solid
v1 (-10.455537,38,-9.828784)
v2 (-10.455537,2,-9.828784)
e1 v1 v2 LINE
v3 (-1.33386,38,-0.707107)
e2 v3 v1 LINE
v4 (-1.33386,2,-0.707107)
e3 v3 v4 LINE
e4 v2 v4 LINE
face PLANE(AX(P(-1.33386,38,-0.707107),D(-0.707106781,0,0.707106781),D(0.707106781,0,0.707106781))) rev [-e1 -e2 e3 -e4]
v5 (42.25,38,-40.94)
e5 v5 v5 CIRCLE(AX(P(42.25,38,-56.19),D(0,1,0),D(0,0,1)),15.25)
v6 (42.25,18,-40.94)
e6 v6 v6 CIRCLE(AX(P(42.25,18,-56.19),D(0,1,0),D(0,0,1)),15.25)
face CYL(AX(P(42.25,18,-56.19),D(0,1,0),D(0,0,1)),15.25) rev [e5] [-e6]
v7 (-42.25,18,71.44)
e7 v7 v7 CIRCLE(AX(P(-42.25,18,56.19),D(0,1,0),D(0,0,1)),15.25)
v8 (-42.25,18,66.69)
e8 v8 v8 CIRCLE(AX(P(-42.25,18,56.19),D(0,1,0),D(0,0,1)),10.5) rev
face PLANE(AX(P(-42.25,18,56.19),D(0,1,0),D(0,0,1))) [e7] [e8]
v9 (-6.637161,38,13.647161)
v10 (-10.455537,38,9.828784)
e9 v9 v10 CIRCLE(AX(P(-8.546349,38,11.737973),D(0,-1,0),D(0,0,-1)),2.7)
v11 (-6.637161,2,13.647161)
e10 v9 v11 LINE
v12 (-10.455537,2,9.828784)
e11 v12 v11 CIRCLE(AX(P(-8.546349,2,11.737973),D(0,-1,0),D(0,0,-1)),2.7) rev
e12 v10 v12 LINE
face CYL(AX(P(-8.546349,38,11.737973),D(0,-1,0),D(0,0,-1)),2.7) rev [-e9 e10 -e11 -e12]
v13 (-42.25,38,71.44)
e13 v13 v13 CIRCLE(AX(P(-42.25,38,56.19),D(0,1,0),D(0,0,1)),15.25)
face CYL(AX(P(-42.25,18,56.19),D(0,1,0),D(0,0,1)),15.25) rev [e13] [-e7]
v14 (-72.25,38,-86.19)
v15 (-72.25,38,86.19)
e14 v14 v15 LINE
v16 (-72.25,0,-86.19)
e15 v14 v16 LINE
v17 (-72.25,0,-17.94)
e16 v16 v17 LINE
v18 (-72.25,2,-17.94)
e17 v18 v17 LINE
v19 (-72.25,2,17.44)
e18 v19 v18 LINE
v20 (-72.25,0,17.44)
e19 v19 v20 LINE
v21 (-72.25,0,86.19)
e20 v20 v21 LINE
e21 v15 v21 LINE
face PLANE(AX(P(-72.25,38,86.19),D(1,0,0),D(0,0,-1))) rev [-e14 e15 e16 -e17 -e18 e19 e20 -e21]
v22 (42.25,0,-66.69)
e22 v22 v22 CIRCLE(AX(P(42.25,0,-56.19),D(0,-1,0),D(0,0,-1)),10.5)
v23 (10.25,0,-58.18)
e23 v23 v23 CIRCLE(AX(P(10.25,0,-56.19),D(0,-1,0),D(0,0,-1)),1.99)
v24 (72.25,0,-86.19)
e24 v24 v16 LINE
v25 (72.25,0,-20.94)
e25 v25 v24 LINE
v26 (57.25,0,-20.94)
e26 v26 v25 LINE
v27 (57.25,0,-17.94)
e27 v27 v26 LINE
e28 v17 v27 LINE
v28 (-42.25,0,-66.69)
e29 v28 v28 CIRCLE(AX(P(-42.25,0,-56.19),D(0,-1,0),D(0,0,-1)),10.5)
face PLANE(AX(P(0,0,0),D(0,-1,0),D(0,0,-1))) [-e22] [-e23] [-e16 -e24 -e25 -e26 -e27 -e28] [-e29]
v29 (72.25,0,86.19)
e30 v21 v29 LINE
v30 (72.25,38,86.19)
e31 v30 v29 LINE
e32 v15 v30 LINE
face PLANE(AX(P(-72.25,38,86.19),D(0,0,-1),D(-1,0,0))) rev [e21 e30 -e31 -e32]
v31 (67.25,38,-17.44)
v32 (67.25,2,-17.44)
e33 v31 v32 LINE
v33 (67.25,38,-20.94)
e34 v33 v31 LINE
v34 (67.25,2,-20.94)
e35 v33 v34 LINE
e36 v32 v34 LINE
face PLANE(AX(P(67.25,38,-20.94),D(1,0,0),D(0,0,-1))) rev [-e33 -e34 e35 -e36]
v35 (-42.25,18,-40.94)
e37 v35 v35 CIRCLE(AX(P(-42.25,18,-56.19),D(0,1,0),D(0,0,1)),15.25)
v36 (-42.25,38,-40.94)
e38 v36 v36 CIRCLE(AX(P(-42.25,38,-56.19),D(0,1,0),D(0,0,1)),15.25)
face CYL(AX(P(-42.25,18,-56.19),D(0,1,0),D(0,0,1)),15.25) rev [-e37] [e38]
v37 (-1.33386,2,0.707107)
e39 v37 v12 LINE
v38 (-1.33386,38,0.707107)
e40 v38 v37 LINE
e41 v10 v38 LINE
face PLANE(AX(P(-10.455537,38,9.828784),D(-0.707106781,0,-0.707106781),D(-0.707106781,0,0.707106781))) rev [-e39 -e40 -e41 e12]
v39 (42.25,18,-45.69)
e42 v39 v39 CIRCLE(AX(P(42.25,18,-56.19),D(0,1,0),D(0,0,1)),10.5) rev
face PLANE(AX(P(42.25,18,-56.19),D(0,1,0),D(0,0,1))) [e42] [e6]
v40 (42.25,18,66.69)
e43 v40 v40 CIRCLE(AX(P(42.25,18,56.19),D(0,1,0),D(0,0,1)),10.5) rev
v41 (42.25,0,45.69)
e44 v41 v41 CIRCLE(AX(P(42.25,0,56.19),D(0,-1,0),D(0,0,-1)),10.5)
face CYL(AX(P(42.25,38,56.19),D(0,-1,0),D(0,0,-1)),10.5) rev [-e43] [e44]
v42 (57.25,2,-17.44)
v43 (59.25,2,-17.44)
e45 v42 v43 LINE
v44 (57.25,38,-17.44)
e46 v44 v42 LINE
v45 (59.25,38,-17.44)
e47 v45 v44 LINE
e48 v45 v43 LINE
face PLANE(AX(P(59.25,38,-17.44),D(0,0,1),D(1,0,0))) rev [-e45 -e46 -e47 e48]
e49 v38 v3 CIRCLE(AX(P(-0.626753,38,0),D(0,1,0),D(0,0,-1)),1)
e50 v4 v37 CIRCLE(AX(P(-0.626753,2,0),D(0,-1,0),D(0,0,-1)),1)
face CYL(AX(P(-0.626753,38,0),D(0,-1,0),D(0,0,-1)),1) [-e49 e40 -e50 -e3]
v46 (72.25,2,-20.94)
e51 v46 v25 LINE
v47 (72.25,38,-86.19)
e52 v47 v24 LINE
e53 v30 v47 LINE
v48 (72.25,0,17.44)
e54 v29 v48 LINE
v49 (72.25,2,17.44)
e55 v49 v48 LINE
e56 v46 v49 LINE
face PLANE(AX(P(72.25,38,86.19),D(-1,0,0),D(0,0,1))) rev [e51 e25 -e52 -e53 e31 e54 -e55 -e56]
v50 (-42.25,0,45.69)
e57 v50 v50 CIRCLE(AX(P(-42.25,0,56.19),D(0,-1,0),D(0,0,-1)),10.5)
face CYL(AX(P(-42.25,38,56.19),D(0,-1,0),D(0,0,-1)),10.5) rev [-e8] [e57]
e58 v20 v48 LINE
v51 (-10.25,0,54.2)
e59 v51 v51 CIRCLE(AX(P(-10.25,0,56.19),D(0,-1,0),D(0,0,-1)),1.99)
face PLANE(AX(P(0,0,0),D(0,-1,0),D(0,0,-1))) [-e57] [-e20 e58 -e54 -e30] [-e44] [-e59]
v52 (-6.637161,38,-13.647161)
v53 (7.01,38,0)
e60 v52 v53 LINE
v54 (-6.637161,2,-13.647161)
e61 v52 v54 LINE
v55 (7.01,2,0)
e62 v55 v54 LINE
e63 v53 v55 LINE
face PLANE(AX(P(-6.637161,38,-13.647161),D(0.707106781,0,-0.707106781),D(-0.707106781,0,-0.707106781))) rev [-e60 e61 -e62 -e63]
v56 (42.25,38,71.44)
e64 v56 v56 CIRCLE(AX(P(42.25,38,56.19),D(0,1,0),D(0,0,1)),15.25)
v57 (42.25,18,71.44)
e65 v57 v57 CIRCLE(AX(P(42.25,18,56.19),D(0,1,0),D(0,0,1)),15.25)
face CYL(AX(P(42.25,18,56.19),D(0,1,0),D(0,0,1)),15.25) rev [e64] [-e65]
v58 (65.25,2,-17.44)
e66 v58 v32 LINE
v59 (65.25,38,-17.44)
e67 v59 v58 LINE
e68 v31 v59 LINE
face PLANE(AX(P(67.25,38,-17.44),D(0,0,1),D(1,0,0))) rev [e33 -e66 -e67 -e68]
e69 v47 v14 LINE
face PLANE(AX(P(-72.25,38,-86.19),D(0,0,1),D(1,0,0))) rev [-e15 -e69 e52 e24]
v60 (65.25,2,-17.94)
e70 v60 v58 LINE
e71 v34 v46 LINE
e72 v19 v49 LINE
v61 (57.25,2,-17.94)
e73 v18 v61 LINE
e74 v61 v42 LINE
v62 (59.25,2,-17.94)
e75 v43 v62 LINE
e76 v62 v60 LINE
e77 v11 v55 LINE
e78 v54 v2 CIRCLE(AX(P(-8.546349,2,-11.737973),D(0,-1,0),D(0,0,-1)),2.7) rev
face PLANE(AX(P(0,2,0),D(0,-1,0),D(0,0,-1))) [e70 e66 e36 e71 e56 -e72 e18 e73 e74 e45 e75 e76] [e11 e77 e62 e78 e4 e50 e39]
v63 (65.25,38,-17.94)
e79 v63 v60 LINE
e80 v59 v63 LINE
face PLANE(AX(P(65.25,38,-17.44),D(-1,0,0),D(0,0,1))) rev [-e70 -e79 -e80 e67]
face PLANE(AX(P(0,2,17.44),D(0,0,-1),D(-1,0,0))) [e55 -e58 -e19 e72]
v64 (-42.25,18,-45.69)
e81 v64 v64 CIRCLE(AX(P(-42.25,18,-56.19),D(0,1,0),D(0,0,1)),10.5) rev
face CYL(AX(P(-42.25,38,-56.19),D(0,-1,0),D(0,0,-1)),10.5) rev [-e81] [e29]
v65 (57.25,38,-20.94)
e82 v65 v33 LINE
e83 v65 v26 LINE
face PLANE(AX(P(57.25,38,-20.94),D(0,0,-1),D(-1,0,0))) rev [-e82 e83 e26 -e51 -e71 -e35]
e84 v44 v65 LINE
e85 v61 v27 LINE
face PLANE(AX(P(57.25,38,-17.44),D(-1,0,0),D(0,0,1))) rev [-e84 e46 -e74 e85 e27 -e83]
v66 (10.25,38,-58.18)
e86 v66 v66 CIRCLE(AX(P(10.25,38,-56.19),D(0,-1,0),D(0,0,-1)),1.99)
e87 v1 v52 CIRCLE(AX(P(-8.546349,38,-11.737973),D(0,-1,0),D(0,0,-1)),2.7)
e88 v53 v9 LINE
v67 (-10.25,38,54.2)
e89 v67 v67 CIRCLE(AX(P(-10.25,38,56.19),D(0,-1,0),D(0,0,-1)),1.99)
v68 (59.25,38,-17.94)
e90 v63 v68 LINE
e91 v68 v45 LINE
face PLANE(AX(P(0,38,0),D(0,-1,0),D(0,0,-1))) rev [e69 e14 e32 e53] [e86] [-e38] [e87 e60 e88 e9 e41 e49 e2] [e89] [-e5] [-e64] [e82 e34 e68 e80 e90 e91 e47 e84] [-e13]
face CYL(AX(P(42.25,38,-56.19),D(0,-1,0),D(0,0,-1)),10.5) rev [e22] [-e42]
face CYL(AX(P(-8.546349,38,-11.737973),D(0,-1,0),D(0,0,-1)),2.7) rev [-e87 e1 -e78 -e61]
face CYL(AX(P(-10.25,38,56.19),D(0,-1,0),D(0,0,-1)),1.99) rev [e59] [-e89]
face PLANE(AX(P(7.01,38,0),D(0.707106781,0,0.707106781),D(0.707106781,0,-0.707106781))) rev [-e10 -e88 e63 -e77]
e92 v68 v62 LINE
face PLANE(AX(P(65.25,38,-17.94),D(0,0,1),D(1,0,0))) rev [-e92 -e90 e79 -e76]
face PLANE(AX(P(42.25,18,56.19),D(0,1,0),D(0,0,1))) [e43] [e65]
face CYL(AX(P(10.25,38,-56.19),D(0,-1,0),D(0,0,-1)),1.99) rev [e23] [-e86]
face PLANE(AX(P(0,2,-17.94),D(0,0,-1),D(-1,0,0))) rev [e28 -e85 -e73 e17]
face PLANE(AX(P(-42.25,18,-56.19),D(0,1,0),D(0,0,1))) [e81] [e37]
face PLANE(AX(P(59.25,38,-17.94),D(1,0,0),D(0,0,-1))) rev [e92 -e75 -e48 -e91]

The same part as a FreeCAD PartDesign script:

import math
import FreeCAD as App
import Part
import Sketcher


def add_polygon(sketch, points):
    """Adds a closed chain of lines whose ends are joined by coincident constraints."""
    first, n = sketch.GeometryCount, len(points)
    for a, b in zip(points, points[1:] + points[:1]):
        sketch.addGeometry(Part.LineSegment(App.Vector(*a, 0), App.Vector(*b, 0)), False)
    for i in range(n):
        sketch.addConstraint(Sketcher.Constraint("Coincident", first + i, 2, first + (i + 1) % n, 1))

doc = App.newDocument("Part")
body = doc.addObject("PartDesign::Body", "Body")

sketch1 = body.newObject("Sketcher::SketchObject", "Sketch")
sketch1.AttachmentSupport = (doc.getObject("XZ_Plane"), [""])
sketch1.MapMode = "FlatFace"
add_polygon(sketch1, [(-72.25, -86.19), (-72.25, 86.19), (72.25, 86.19), (72.25, -86.19)])
sketch1.addConstraint(Sketcher.Constraint("Vertical", 0))
sketch1.addConstraint(Sketcher.Constraint("Horizontal", 1))
sketch1.addConstraint(Sketcher.Constraint("Vertical", 2))
sketch1.addConstraint(Sketcher.Constraint("Horizontal", 3))
sketch1.addConstraint(Sketcher.Constraint("Symmetric", 0, 2, 2, 2, -1, 1))
sketch1.addConstraint(Sketcher.Constraint("DistanceX", 1, 1, 1, 2, 144.5))
sketch1.addConstraint(Sketcher.Constraint("DistanceY", 0, 1, 0, 2, 172.38))
pad1 = body.newObject("PartDesign::Pad", "Pad")
pad1.Profile = sketch1
pad1.Length = 38
pad1.Reversed = True

sketch2 = body.newObject("Sketcher::SketchObject", "Sketch001")
sketch2.AttachmentSupport = (doc.getObject("XZ_Plane"), [""])
sketch2.MapMode = "FlatFace"
sketch2.addGeometry(Part.Circle(App.Vector(-42.25, -56.19, 0), App.Vector(0, 0, 1), 10.5), False)
sketch2.addGeometry(Part.Circle(App.Vector(10.25, -56.19, 0), App.Vector(0, 0, 1), 1.99), False)
sketch2.addGeometry(Part.Circle(App.Vector(42.25, -56.19, 0), App.Vector(0, 0, 1), 10.5), False)
sketch2.addGeometry(Part.Circle(App.Vector(-42.25, 56.19, 0), App.Vector(0, 0, 1), 10.5), False)
sketch2.addGeometry(Part.Circle(App.Vector(-10.25, 56.19, 0), App.Vector(0, 0, 1), 1.99), False)
sketch2.addGeometry(Part.Circle(App.Vector(42.25, 56.19, 0), App.Vector(0, 0, 1), 10.5), False)
add_polygon(sketch2, [(57.25, -20.94), (67.25, -20.94), (67.25, -17.44), (65.25, -17.44), (65.25, -17.94), (59.25, -17.94), (59.25, -17.44), (57.25, -17.44)])
sketch2.addGeometry(Part.LineSegment(App.Vector(-1.33386, -0.707107, 0), App.Vector(-10.455537, -9.828784, 0)), False)
sketch2.addGeometry(Part.ArcOfCircle(Part.Circle(App.Vector(-8.546349, -11.737973, 0), App.Vector(0, 0, 1), 2.7), math.radians(135), math.radians(315)), False)
sketch2.addGeometry(Part.LineSegment(App.Vector(-6.637161, -13.647161, 0), App.Vector(7.01, 0, 0)), False)
sketch2.addGeometry(Part.LineSegment(App.Vector(7.01, 0, 0), App.Vector(-6.637161, 13.647161, 0)), False)
sketch2.addGeometry(Part.ArcOfCircle(Part.Circle(App.Vector(-8.546349, 11.737973, 0), App.Vector(0, 0, 1), 2.7), math.radians(45), math.radians(225)), False)
sketch2.addGeometry(Part.LineSegment(App.Vector(-10.455537, 9.828784, 0), App.Vector(-1.33386, 0.707107, 0)), False)
sketch2.addGeometry(Part.ArcOfCircle(Part.Circle(App.Vector(-0.626753, 0, 0), App.Vector(0, 0, 1), 1), math.radians(-135), math.radians(135)), False)
sketch2.addConstraint(Sketcher.Constraint("Tangent", 14, 2, 15, 1))
sketch2.addConstraint(Sketcher.Constraint("Tangent", 15, 2, 16, 1))
sketch2.addConstraint(Sketcher.Constraint("Coincident", 16, 2, 17, 1))
sketch2.addConstraint(Sketcher.Constraint("Tangent", 17, 2, 18, 1))
sketch2.addConstraint(Sketcher.Constraint("Tangent", 18, 2, 19, 1))
sketch2.addConstraint(Sketcher.Constraint("Coincident", 19, 2, 20, 2))
sketch2.addConstraint(Sketcher.Constraint("Coincident", 20, 1, 14, 1))
sketch2.addConstraint(Sketcher.Constraint("Horizontal", 6))
sketch2.addConstraint(Sketcher.Constraint("Vertical", 7))
sketch2.addConstraint(Sketcher.Constraint("Horizontal", 8))
sketch2.addConstraint(Sketcher.Constraint("Vertical", 9))
sketch2.addConstraint(Sketcher.Constraint("Horizontal", 10))
sketch2.addConstraint(Sketcher.Constraint("Vertical", 11))
sketch2.addConstraint(Sketcher.Constraint("Horizontal", 12))
sketch2.addConstraint(Sketcher.Constraint("Vertical", 13))
sketch2.addConstraint(Sketcher.Constraint("Equal", 0, 2))
sketch2.addConstraint(Sketcher.Constraint("Equal", 2, 3))
sketch2.addConstraint(Sketcher.Constraint("Equal", 1, 4))
sketch2.addConstraint(Sketcher.Constraint("Equal", 3, 5))
sketch2.addConstraint(Sketcher.Constraint("Equal", 15, 18))
sketch2.addConstraint(Sketcher.Constraint("Symmetric", 2, 3, 3, 3, -1, 1))
sketch2.addConstraint(Sketcher.Constraint("Symmetric", 1, 3, 4, 3, -1, 1))
sketch2.addConstraint(Sketcher.Constraint("Symmetric", 0, 3, 5, 3, -1, 1))
sketch2.addConstraint(Sketcher.Constraint("Symmetric", 0, 3, 2, 3, -2))
sketch2.addConstraint(Sketcher.Constraint("Symmetric", 15, 3, 18, 3, -1))
sketch2.addConstraint(Sketcher.Constraint("Symmetric", 19, 2, 20, 1, -1))
sketch2.addConstraint(Sketcher.Constraint("PointOnObject", 16, 2, -1))
sketch2.addConstraint(Sketcher.Constraint("Parallel", 14, 16))
sketch2.addConstraint(Sketcher.Constraint("Perpendicular", 16, 17))
sketch2.addConstraint(Sketcher.Constraint("Horizontal", 0, 3, 1, 3))
sketch2.addConstraint(Sketcher.Constraint("Horizontal", 8, 2, 11, 2))
sketch2.addConstraint(Sketcher.Constraint("Equal", 8, 12))
sketch2.addConstraint(Sketcher.Constraint("Diameter", 0, 21.0))
sketch2.addConstraint(Sketcher.Constraint("Radius", 20, 1.0))
sketch2.addConstraint(Sketcher.Constraint("Radius", 15, 2.7))
sketch2.addConstraint(Sketcher.Constraint("Diameter", 1, 3.98))
sketch2.addConstraint(Sketcher.Constraint("DistanceX", 6, 1, 6, 2, 10.0))
sketch2.addConstraint(Sketcher.Constraint("DistanceX", 8, 2, 8, 1, 2.0))
sketch2.addConstraint(Sketcher.Constraint("DistanceY", 7, 1, 7, 2, 3.5))
sketch2.addConstraint(Sketcher.Constraint("DistanceY", 9, 2, 9, 1, 0.5))
sketch2.addConstraint(Sketcher.Constraint("DistanceX", 1, 3, 2, 3, 32.0))
sketch2.addConstraint(Sketcher.Constraint("DistanceX", 2, 3, 6, 2, 25.0))
sketch2.addConstraint(Sketcher.Constraint("Distance", 14, 12.9))
sketch2.addConstraint(Sketcher.Constraint("Distance", 16, 19.3))
sketch2.addConstraint(Sketcher.Constraint("DistanceX", 0, 3, 1, 3, 52.5))
sketch2.addConstraint(Sketcher.Constraint("DistanceY", 0, 3, -1, 1, 56.19))
sketch2.addConstraint(Sketcher.Constraint("DistanceY", 6, 2, -1, 1, 20.94))
sketch2.addConstraint(Sketcher.Constraint("DistanceX", -1, 1, 16, 2, 7.01))
pocket1 = body.newObject("PartDesign::Pocket", "Pocket")
pocket1.Profile = sketch2
pocket1.Type = "ThroughAll"

sketch3 = body.newObject("Sketcher::SketchObject", "Sketch002")
sketch3.AttachmentSupport = (doc.getObject("XZ_Plane"), [""])
sketch3.MapMode = "FlatFace"
add_polygon(sketch3, [(72.25, 17.44), (-72.25, 17.44), (-72.25, -17.94), (57.25, -17.94), (57.25, -17.44), (59.25, -17.44), (59.25, -17.94), (65.25, -17.94), (65.25, -17.44), (67.25, -17.44), (67.25, -20.94), (72.25, -20.94)])
sketch3.addGeometry(Part.LineSegment(App.Vector(-6.637161, 13.647161, 0), App.Vector(7.01, 0, 0)), False)
sketch3.addGeometry(Part.LineSegment(App.Vector(7.01, 0, 0), App.Vector(-6.637161, -13.647161, 0)), False)
sketch3.addGeometry(Part.ArcOfCircle(Part.Circle(App.Vector(-8.546349, -11.737973, 0), App.Vector(0, 0, 1), 2.7), math.radians(135), math.radians(315)), False)
sketch3.addGeometry(Part.LineSegment(App.Vector(-10.455537, -9.828784, 0), App.Vector(-1.33386, -0.707107, 0)), False)
sketch3.addGeometry(Part.ArcOfCircle(Part.Circle(App.Vector(-0.626753, 0, 0), App.Vector(0, 0, 1), 1), math.radians(-135), math.radians(135)), False)
sketch3.addGeometry(Part.LineSegment(App.Vector(-1.33386, 0.707107, 0), App.Vector(-10.455537, 9.828784, 0)), False)
sketch3.addGeometry(Part.ArcOfCircle(Part.Circle(App.Vector(-8.546349, 11.737973, 0), App.Vector(0, 0, 1), 2.7), math.radians(45), math.radians(225)), False)
sketch3.addConstraint(Sketcher.Constraint("Coincident", 12, 2, 13, 1))
sketch3.addConstraint(Sketcher.Constraint("Tangent", 13, 2, 14, 2))
sketch3.addConstraint(Sketcher.Constraint("Tangent", 14, 1, 15, 1))
sketch3.addConstraint(Sketcher.Constraint("Coincident", 15, 2, 16, 1))
sketch3.addConstraint(Sketcher.Constraint("Coincident", 16, 2, 17, 1))
sketch3.addConstraint(Sketcher.Constraint("Tangent", 17, 2, 18, 2))
sketch3.addConstraint(Sketcher.Constraint("Tangent", 18, 1, 12, 1))
sketch3.addConstraint(Sketcher.Constraint("Horizontal", 0))
sketch3.addConstraint(Sketcher.Constraint("Vertical", 1))
sketch3.addConstraint(Sketcher.Constraint("Horizontal", 2))
sketch3.addConstraint(Sketcher.Constraint("Vertical", 3))
sketch3.addConstraint(Sketcher.Constraint("Horizontal", 4))
sketch3.addConstraint(Sketcher.Constraint("Vertical", 5))
sketch3.addConstraint(Sketcher.Constraint("Horizontal", 6))
sketch3.addConstraint(Sketcher.Constraint("Vertical", 7))
sketch3.addConstraint(Sketcher.Constraint("Horizontal", 8))
sketch3.addConstraint(Sketcher.Constraint("Vertical", 9))
sketch3.addConstraint(Sketcher.Constraint("Horizontal", 10))
sketch3.addConstraint(Sketcher.Constraint("Vertical", 11))
sketch3.addConstraint(Sketcher.Constraint("Equal", 14, 18))
sketch3.addConstraint(Sketcher.Constraint("Symmetric", 14, 3, 18, 3, -1))
sketch3.addConstraint(Sketcher.Constraint("Symmetric", 15, 2, 16, 2, -1))
sketch3.addConstraint(Sketcher.Constraint("PointOnObject", 12, 2, -1))
sketch3.addConstraint(Sketcher.Constraint("Perpendicular", 12, 13))
sketch3.addConstraint(Sketcher.Constraint("Parallel", 13, 15))
sketch3.addConstraint(Sketcher.Constraint("Horizontal", 2, 2, 5, 2))
sketch3.addConstraint(Sketcher.Constraint("Horizontal", 4, 2, 7, 2))
sketch3.addConstraint(Sketcher.Constraint("Equal", 4, 8))
sketch3.addConstraint(Sketcher.Constraint("Radius", 16, 1.0))
sketch3.addConstraint(Sketcher.Constraint("Radius", 14, 2.7))
sketch3.addConstraint(Sketcher.Constraint("DistanceX", 4, 1, 4, 2, 2.0))
sketch3.addConstraint(Sketcher.Constraint("DistanceX", 6, 1, 6, 2, 6.0))
sketch3.addConstraint(Sketcher.Constraint("DistanceX", 10, 1, 10, 2, 5.0))
sketch3.addConstraint(Sketcher.Constraint("DistanceX", 0, 2, 0, 1, 144.5))
sketch3.addConstraint(Sketcher.Constraint("DistanceY", 3, 1, 3, 2, 0.5))
sketch3.addConstraint(Sketcher.Constraint("DistanceY", 9, 2, 9, 1, 3.5))
sketch3.addConstraint(Sketcher.Constraint("Distance", 12, 19.3))
sketch3.addConstraint(Sketcher.Constraint("Distance", 15, 12.9))
sketch3.addConstraint(Sketcher.Constraint("DistanceY", 1, 2, 1, 1, 35.38))
sketch3.addConstraint(Sketcher.Constraint("DistanceX", 0, 2, -1, 1, 72.25))
sketch3.addConstraint(Sketcher.Constraint("DistanceY", -1, 1, 0, 2, 17.44))
sketch3.addConstraint(Sketcher.Constraint("DistanceX", -1, 1, 12, 2, 7.01))
pocket2 = body.newObject("PartDesign::Pocket", "Pocket001")
pocket2.Profile = sketch3
pocket2.Length = 2

sketch4 = body.newObject("Sketcher::SketchObject", "Sketch003")
sketch4.AttachmentSupport = (doc.getObject("XZ_Plane"), [""])
sketch4.MapMode = "FlatFace"
sketch4.AttachmentOffset = App.Placement(App.Vector(0, 0, -38), App.Rotation())
sketch4.addGeometry(Part.Circle(App.Vector(-42.25, -56.19, 0), App.Vector(0, 0, 1), 15.25), False)
sketch4.addGeometry(Part.Circle(App.Vector(42.25, -56.19, 0), App.Vector(0, 0, 1), 15.25), False)
sketch4.addGeometry(Part.Circle(App.Vector(42.25, 56.19, 0), App.Vector(0, 0, 1), 15.25), False)
sketch4.addGeometry(Part.Circle(App.Vector(-42.25, 56.19, 0), App.Vector(0, 0, 1), 15.25), False)
sketch4.addConstraint(Sketcher.Constraint("Equal", 0, 1))
sketch4.addConstraint(Sketcher.Constraint("Equal", 1, 2))
sketch4.addConstraint(Sketcher.Constraint("Equal", 2, 3))
sketch4.addConstraint(Sketcher.Constraint("Symmetric", 0, 3, 2, 3, -1, 1))
sketch4.addConstraint(Sketcher.Constraint("Symmetric", 1, 3, 3, 3, -1, 1))
sketch4.addConstraint(Sketcher.Constraint("Symmetric", 0, 3, 1, 3, -2))
sketch4.addConstraint(Sketcher.Constraint("Diameter", 0, 30.5))
sketch4.addConstraint(Sketcher.Constraint("DistanceX", 0, 3, 1, 3, 84.5))
sketch4.addConstraint(Sketcher.Constraint("DistanceY", 0, 3, -1, 1, 56.19))
pocket3 = body.newObject("PartDesign::Pocket", "Pocket002")
pocket3.Profile = sketch4
pocket3.Length = 20
pocket3.Reversed = True

doc.recompute()
